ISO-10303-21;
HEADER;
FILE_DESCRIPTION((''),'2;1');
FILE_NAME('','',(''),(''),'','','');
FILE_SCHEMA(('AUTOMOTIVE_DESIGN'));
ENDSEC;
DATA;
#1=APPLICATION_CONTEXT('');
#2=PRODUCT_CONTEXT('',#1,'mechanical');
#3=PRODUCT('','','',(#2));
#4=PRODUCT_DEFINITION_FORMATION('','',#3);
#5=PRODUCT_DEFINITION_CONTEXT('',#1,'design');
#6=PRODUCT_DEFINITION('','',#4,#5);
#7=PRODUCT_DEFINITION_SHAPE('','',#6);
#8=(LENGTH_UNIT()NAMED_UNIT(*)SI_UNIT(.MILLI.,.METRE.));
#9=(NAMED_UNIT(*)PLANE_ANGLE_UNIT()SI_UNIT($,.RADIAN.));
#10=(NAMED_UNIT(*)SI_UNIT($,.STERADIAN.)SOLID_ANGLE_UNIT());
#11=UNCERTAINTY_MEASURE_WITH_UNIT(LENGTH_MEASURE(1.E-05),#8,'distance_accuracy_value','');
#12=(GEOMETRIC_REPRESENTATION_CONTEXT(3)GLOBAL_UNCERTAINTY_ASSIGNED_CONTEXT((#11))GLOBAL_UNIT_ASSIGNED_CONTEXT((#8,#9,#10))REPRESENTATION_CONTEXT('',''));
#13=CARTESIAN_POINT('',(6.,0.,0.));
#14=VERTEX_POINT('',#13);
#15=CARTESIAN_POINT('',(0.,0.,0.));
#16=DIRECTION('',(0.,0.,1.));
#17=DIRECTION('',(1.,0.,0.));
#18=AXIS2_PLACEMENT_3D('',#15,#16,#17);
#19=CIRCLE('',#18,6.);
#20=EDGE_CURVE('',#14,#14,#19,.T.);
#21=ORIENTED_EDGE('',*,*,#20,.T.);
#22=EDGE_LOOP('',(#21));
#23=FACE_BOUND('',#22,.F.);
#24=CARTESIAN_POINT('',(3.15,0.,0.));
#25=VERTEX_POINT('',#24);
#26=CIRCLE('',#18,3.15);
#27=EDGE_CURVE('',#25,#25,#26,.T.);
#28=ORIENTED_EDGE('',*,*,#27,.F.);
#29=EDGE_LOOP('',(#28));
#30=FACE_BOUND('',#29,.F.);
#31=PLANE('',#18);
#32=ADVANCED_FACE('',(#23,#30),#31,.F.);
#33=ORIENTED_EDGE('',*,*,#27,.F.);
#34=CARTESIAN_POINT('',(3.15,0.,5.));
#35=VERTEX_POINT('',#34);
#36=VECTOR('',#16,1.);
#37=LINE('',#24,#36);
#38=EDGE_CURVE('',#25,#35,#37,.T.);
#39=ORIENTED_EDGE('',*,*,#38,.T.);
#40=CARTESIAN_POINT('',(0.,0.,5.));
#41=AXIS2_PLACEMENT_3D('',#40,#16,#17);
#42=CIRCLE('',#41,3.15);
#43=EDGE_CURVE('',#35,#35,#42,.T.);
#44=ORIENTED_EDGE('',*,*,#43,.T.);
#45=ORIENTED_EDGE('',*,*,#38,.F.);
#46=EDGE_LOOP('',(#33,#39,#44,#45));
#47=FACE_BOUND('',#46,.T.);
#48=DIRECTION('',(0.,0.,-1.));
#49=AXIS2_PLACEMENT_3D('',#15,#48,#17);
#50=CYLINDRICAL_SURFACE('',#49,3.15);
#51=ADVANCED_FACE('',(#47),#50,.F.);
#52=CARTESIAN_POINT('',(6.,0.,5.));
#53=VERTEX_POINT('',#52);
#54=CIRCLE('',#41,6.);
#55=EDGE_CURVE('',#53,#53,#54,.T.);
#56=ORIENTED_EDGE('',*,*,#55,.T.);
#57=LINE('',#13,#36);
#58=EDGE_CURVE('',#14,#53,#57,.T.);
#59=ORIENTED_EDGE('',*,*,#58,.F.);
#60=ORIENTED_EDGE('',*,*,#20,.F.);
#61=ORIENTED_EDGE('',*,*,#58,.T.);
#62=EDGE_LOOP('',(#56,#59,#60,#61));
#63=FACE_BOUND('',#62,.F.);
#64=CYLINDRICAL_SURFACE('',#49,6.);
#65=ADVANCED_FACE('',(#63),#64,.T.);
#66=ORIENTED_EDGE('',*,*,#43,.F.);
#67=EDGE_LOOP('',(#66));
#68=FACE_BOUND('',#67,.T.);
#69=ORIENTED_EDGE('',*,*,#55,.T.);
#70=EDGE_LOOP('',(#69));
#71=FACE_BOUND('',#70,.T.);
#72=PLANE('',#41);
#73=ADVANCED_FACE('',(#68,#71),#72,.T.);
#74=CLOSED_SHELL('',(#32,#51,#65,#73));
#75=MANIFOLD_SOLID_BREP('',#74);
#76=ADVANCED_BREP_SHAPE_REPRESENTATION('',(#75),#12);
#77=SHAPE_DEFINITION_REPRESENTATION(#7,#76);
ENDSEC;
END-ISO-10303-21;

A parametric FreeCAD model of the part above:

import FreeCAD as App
import Part
import Sketcher
Q = App.Units.Quantity

doc = App.newDocument("Part")
params = doc.addObject("Spreadsheet::Sheet", "Params")
for row, (alias, value) in enumerate([
    ("sketch1_diameter", "12 mm"),
    ("sketch1_diameter2", "6.3 mm"),
    ("pad1_length", "5 mm"),
], start=1):
    params.set(f"A{row}", alias)
    params.set(f"B{row}", "=" + value)
    params.setAlias(f"B{row}", alias)

body = doc.addObject("PartDesign::Body", "Body")

sketch1 = body.newObject("Sketcher::SketchObject", "Sketch")
sketch1.AttachmentSupport = (doc.getObject("XY_Plane"), [""])
sketch1.MapMode = "FlatFace"
sketch1.addGeometry([
    Part.Circle(App.Vector(0, 0, 0), App.Vector(0, 0, 1), 6),
    Part.Circle(App.Vector(0, 0, 0), App.Vector(0, 0, 1), 3.1),
], False)
sketch1.addConstraint([
    Sketcher.Constraint("Coincident", 0, 3, -1, 1),
    Sketcher.Constraint("Coincident", 1, 3, -1, 1),
    Sketcher.Constraint("Diameter", 0, Q("12 mm")),
    Sketcher.Constraint("Diameter", 1, Q("6.3 mm")),
])
sketch1.setExpression("Constraints[2]", "Params.sketch1_diameter")
sketch1.setExpression("Constraints[3]", "Params.sketch1_diameter2")
pad1 = body.newObject("PartDesign::Pad", "Pad")
pad1.Profile = sketch1
pad1.setExpression("Length", "Params.pad1_length")

doc.recompute()
